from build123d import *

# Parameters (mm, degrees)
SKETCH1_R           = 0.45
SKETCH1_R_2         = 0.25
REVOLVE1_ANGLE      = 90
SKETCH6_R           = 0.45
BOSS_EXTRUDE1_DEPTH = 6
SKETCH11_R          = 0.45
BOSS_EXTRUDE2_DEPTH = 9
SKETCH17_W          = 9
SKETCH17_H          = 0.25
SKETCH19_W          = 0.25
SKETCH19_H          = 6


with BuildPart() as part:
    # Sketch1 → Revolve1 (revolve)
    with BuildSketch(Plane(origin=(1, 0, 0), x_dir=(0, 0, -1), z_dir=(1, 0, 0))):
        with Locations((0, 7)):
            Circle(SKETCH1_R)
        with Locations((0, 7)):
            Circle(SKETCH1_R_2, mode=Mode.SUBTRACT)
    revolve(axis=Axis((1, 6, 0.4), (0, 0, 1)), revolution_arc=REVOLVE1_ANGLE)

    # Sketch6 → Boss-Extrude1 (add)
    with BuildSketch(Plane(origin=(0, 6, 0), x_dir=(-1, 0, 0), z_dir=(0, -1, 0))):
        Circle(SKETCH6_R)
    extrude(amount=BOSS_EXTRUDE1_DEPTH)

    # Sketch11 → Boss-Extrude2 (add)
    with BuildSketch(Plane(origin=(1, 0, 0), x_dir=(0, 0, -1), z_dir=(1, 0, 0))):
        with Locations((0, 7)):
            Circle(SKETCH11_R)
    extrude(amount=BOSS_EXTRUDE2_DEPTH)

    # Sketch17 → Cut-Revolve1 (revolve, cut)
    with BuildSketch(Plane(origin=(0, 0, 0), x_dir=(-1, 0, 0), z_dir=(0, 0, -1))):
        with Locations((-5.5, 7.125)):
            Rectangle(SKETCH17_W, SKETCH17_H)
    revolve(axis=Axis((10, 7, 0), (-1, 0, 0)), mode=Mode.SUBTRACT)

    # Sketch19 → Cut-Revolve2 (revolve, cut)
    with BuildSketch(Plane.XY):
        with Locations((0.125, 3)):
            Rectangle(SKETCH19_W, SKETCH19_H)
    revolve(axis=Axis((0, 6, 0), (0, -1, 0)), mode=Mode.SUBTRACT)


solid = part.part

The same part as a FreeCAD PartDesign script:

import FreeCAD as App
import Part
import Sketcher
Q = App.Units.Quantity

doc = App.newDocument("Part")
body = doc.addObject("PartDesign::Body", "Body")

# Sketch on YZ plane
sketch1 = doc.addObject("Sketcher::SketchObject", "Sketch")
body.addObject(sketch1)
sketch1.AttachmentSupport = (doc.YZ_Plane, [""])
sketch1.MapMode = "FlatFace"
sketch1.AttachmentOffset = App.Placement(App.Vector(0, 0, 1), App.Rotation())
sketch1.addGeometry([
    Part.Circle(App.Vector(7, 0, 0), App.Vector(0, 0, 1), 0.45),
    Part.Circle(App.Vector(7, 0, 0), App.Vector(0, 0, 1), 0.25),
], False)
sketch1.addGeometry(Part.LineSegment(App.Vector(6, 0, 0), App.Vector(6, 10, 0)), True)  # axis
sketch1.addConstraint([
    Sketcher.Constraint("Vertical", 2),
    Sketcher.Constraint("Coincident", 1, 3, 0, 3),
    Sketcher.Constraint("PointOnObject", 0, 3, -1),
    Sketcher.Constraint("PointOnObject", 2, 1, -1),
    Sketcher.Constraint("Diameter", 0, Q("0.9 mm")),
    Sketcher.Constraint("Diameter", 1, Q("0.5 mm")),
    Sketcher.Constraint("DistanceY", 2, 1, 2, 2, Q("10 mm")),
    Sketcher.Constraint("DistanceX", -1, 1, 0, 3, Q("7 mm")),
    Sketcher.Constraint("DistanceX", -1, 1, 2, 1, Q("6 mm")),
])
revolution = doc.addObject("PartDesign::Revolution", "Revolution")
body.addObject(revolution)
revolution.Profile = sketch1
revolution.ReferenceAxis = (sketch1, ["Axis0"])
revolution.Angle = 90

# Sketch on XZ plane
sketch2 = doc.addObject("Sketcher::SketchObject", "Sketch001")
body.addObject(sketch2)
sketch2.AttachmentSupport = (doc.XZ_Plane, [""])
sketch2.MapMode = "FlatFace"
sketch2.AttachmentOffset = App.Placement(App.Vector(0, 0, -6), App.Rotation())
sketch2.addGeometry(Part.Circle(App.Vector(0, 0, 0), App.Vector(0, 0, 1), 0.45), False)
sketch2.addConstraint([
    Sketcher.Constraint("Coincident", 0, 3, -1, 1),
    Sketcher.Constraint("Diameter", 0, Q("0.9 mm")),
])
pad1 = doc.addObject("PartDesign::Pad", "Pad")
body.addObject(pad1)
pad1.Profile = sketch2
pad1.Length = 6

# Sketch on YZ plane
sketch3 = doc.addObject("Sketcher::SketchObject", "Sketch002")
body.addObject(sketch3)
sketch3.AttachmentSupport = (doc.YZ_Plane, [""])
sketch3.MapMode = "FlatFace"
sketch3.AttachmentOffset = App.Placement(App.Vector(0, 0, 1), App.Rotation())
sketch3.addGeometry(Part.Circle(App.Vector(7, 0, 0), App.Vector(0, 0, 1), 0.45), False)
sketch3.addConstraint([
    Sketcher.Constraint("PointOnObject", 0, 3, -1),
    Sketcher.Constraint("Diameter", 0, Q("0.9 mm")),
    Sketcher.Constraint("DistanceX", -1, 1, 0, 3, Q("7 mm")),
])
pad2 = doc.addObject("PartDesign::Pad", "Pad001")
body.addObject(pad2)
pad2.Profile = sketch3
pad2.Length = 9

# Sketch on XY plane
sketch4 = doc.addObject("Sketcher::SketchObject", "Sketch003")
body.addObject(sketch4)
sketch4.AttachmentSupport = (doc.XY_Plane, [""])
sketch4.MapMode = "FlatFace"
sketch4.addGeometry([
    Part.LineSegment(App.Vector(10, 7.25, 0), App.Vector(10, 7, 0)),
    Part.LineSegment(App.Vector(10, 7, 0), App.Vector(1, 7, 0)),
    Part.LineSegment(App.Vector(1, 7, 0), App.Vector(1, 7.25, 0)),
    Part.LineSegment(App.Vector(1, 7.25, 0), App.Vector(10, 7.25, 0)),
], False)
sketch4.addGeometry(Part.LineSegment(App.Vector(10, 7, 0), App.Vector(1, 7, 0)), True)  # axis
sketch4.addConstraint([
    Sketcher.Constraint("Coincident", 0, 2, 1, 1),
    Sketcher.Constraint("Coincident", 1, 2, 2, 1),
    Sketcher.Constraint("Coincident", 2, 2, 3, 1),
    Sketcher.Constraint("Coincident", 3, 2, 0, 1),
    Sketcher.Constraint("Vertical", 0),
    Sketcher.Constraint("Horizontal", 1),
    Sketcher.Constraint("Vertical", 2),
    Sketcher.Constraint("Horizontal", 3),
    Sketcher.Constraint("Horizontal", 4),
    Sketcher.Constraint("Coincident", 4, 1, 0, 2),
    Sketcher.Constraint("Vertical", 2, 2, 4, 2),
    Sketcher.Constraint("DistanceX", 1, 2, 1, 1, Q("9 mm")),
    Sketcher.Constraint("DistanceX", -1, 1, 0, 2, Q("10 mm")),
    Sketcher.Constraint("DistanceY", -1, 1, 0, 2, Q("7 mm")),
    Sketcher.Constraint("DistanceY", 0, 2, 0, 1, Q("0.25 mm")),
])
groove = doc.addObject("PartDesign::Groove", "Groove")
body.addObject(groove)
groove.Profile = sketch4
groove.ReferenceAxis = (sketch4, ["Axis0"])
groove.Angle = 360

# Sketch on XY plane
sketch5 = doc.addObject("Sketcher::SketchObject", "Sketch004")
body.addObject(sketch5)
sketch5.AttachmentSupport = (doc.XY_Plane, [""])
sketch5.MapMode = "FlatFace"
sketch5.addGeometry([
    Part.LineSegment(App.Vector(0, 6, 0), App.Vector(0, 0, 0)),
    Part.LineSegment(App.Vector(0, 0, 0), App.Vector(0.25, 0, 0)),
    Part.LineSegment(App.Vector(0.25, 0, 0), App.Vector(0.25, 6, 0)),
    Part.LineSegment(App.Vector(0.25, 6, 0), App.Vector(0, 6, 0)),
], False)
sketch5.addConstraint([
    Sketcher.Constraint("Coincident", 0, 2, 1, 1),
    Sketcher.Constraint("Coincident", 1, 2, 2, 1),
    Sketcher.Constraint("Coincident", 2, 2, 3, 1),
    Sketcher.Constraint("Coincident", 3, 2, 0, 1),
    Sketcher.Constraint("Vertical", 0),
    Sketcher.Constraint("Horizontal", 1),
    Sketcher.Constraint("Vertical", 2),
    Sketcher.Constraint("Horizontal", 3),
    Sketcher.Constraint("Coincident", 0, 2, -1, 1),
    Sketcher.Constraint("DistanceY", 0, 2, 0, 1, Q("6 mm")),
    Sketcher.Constraint("DistanceX", 1, 1, 1, 2, Q("0.25 mm")),
])
groove2 = doc.addObject("PartDesign::Groove", "Groove001")
body.addObject(groove2)
groove2.Profile = sketch5
groove2.ReferenceAxis = (sketch5, ["V_Axis"])
groove2.Angle = 360

doc.recompute()
